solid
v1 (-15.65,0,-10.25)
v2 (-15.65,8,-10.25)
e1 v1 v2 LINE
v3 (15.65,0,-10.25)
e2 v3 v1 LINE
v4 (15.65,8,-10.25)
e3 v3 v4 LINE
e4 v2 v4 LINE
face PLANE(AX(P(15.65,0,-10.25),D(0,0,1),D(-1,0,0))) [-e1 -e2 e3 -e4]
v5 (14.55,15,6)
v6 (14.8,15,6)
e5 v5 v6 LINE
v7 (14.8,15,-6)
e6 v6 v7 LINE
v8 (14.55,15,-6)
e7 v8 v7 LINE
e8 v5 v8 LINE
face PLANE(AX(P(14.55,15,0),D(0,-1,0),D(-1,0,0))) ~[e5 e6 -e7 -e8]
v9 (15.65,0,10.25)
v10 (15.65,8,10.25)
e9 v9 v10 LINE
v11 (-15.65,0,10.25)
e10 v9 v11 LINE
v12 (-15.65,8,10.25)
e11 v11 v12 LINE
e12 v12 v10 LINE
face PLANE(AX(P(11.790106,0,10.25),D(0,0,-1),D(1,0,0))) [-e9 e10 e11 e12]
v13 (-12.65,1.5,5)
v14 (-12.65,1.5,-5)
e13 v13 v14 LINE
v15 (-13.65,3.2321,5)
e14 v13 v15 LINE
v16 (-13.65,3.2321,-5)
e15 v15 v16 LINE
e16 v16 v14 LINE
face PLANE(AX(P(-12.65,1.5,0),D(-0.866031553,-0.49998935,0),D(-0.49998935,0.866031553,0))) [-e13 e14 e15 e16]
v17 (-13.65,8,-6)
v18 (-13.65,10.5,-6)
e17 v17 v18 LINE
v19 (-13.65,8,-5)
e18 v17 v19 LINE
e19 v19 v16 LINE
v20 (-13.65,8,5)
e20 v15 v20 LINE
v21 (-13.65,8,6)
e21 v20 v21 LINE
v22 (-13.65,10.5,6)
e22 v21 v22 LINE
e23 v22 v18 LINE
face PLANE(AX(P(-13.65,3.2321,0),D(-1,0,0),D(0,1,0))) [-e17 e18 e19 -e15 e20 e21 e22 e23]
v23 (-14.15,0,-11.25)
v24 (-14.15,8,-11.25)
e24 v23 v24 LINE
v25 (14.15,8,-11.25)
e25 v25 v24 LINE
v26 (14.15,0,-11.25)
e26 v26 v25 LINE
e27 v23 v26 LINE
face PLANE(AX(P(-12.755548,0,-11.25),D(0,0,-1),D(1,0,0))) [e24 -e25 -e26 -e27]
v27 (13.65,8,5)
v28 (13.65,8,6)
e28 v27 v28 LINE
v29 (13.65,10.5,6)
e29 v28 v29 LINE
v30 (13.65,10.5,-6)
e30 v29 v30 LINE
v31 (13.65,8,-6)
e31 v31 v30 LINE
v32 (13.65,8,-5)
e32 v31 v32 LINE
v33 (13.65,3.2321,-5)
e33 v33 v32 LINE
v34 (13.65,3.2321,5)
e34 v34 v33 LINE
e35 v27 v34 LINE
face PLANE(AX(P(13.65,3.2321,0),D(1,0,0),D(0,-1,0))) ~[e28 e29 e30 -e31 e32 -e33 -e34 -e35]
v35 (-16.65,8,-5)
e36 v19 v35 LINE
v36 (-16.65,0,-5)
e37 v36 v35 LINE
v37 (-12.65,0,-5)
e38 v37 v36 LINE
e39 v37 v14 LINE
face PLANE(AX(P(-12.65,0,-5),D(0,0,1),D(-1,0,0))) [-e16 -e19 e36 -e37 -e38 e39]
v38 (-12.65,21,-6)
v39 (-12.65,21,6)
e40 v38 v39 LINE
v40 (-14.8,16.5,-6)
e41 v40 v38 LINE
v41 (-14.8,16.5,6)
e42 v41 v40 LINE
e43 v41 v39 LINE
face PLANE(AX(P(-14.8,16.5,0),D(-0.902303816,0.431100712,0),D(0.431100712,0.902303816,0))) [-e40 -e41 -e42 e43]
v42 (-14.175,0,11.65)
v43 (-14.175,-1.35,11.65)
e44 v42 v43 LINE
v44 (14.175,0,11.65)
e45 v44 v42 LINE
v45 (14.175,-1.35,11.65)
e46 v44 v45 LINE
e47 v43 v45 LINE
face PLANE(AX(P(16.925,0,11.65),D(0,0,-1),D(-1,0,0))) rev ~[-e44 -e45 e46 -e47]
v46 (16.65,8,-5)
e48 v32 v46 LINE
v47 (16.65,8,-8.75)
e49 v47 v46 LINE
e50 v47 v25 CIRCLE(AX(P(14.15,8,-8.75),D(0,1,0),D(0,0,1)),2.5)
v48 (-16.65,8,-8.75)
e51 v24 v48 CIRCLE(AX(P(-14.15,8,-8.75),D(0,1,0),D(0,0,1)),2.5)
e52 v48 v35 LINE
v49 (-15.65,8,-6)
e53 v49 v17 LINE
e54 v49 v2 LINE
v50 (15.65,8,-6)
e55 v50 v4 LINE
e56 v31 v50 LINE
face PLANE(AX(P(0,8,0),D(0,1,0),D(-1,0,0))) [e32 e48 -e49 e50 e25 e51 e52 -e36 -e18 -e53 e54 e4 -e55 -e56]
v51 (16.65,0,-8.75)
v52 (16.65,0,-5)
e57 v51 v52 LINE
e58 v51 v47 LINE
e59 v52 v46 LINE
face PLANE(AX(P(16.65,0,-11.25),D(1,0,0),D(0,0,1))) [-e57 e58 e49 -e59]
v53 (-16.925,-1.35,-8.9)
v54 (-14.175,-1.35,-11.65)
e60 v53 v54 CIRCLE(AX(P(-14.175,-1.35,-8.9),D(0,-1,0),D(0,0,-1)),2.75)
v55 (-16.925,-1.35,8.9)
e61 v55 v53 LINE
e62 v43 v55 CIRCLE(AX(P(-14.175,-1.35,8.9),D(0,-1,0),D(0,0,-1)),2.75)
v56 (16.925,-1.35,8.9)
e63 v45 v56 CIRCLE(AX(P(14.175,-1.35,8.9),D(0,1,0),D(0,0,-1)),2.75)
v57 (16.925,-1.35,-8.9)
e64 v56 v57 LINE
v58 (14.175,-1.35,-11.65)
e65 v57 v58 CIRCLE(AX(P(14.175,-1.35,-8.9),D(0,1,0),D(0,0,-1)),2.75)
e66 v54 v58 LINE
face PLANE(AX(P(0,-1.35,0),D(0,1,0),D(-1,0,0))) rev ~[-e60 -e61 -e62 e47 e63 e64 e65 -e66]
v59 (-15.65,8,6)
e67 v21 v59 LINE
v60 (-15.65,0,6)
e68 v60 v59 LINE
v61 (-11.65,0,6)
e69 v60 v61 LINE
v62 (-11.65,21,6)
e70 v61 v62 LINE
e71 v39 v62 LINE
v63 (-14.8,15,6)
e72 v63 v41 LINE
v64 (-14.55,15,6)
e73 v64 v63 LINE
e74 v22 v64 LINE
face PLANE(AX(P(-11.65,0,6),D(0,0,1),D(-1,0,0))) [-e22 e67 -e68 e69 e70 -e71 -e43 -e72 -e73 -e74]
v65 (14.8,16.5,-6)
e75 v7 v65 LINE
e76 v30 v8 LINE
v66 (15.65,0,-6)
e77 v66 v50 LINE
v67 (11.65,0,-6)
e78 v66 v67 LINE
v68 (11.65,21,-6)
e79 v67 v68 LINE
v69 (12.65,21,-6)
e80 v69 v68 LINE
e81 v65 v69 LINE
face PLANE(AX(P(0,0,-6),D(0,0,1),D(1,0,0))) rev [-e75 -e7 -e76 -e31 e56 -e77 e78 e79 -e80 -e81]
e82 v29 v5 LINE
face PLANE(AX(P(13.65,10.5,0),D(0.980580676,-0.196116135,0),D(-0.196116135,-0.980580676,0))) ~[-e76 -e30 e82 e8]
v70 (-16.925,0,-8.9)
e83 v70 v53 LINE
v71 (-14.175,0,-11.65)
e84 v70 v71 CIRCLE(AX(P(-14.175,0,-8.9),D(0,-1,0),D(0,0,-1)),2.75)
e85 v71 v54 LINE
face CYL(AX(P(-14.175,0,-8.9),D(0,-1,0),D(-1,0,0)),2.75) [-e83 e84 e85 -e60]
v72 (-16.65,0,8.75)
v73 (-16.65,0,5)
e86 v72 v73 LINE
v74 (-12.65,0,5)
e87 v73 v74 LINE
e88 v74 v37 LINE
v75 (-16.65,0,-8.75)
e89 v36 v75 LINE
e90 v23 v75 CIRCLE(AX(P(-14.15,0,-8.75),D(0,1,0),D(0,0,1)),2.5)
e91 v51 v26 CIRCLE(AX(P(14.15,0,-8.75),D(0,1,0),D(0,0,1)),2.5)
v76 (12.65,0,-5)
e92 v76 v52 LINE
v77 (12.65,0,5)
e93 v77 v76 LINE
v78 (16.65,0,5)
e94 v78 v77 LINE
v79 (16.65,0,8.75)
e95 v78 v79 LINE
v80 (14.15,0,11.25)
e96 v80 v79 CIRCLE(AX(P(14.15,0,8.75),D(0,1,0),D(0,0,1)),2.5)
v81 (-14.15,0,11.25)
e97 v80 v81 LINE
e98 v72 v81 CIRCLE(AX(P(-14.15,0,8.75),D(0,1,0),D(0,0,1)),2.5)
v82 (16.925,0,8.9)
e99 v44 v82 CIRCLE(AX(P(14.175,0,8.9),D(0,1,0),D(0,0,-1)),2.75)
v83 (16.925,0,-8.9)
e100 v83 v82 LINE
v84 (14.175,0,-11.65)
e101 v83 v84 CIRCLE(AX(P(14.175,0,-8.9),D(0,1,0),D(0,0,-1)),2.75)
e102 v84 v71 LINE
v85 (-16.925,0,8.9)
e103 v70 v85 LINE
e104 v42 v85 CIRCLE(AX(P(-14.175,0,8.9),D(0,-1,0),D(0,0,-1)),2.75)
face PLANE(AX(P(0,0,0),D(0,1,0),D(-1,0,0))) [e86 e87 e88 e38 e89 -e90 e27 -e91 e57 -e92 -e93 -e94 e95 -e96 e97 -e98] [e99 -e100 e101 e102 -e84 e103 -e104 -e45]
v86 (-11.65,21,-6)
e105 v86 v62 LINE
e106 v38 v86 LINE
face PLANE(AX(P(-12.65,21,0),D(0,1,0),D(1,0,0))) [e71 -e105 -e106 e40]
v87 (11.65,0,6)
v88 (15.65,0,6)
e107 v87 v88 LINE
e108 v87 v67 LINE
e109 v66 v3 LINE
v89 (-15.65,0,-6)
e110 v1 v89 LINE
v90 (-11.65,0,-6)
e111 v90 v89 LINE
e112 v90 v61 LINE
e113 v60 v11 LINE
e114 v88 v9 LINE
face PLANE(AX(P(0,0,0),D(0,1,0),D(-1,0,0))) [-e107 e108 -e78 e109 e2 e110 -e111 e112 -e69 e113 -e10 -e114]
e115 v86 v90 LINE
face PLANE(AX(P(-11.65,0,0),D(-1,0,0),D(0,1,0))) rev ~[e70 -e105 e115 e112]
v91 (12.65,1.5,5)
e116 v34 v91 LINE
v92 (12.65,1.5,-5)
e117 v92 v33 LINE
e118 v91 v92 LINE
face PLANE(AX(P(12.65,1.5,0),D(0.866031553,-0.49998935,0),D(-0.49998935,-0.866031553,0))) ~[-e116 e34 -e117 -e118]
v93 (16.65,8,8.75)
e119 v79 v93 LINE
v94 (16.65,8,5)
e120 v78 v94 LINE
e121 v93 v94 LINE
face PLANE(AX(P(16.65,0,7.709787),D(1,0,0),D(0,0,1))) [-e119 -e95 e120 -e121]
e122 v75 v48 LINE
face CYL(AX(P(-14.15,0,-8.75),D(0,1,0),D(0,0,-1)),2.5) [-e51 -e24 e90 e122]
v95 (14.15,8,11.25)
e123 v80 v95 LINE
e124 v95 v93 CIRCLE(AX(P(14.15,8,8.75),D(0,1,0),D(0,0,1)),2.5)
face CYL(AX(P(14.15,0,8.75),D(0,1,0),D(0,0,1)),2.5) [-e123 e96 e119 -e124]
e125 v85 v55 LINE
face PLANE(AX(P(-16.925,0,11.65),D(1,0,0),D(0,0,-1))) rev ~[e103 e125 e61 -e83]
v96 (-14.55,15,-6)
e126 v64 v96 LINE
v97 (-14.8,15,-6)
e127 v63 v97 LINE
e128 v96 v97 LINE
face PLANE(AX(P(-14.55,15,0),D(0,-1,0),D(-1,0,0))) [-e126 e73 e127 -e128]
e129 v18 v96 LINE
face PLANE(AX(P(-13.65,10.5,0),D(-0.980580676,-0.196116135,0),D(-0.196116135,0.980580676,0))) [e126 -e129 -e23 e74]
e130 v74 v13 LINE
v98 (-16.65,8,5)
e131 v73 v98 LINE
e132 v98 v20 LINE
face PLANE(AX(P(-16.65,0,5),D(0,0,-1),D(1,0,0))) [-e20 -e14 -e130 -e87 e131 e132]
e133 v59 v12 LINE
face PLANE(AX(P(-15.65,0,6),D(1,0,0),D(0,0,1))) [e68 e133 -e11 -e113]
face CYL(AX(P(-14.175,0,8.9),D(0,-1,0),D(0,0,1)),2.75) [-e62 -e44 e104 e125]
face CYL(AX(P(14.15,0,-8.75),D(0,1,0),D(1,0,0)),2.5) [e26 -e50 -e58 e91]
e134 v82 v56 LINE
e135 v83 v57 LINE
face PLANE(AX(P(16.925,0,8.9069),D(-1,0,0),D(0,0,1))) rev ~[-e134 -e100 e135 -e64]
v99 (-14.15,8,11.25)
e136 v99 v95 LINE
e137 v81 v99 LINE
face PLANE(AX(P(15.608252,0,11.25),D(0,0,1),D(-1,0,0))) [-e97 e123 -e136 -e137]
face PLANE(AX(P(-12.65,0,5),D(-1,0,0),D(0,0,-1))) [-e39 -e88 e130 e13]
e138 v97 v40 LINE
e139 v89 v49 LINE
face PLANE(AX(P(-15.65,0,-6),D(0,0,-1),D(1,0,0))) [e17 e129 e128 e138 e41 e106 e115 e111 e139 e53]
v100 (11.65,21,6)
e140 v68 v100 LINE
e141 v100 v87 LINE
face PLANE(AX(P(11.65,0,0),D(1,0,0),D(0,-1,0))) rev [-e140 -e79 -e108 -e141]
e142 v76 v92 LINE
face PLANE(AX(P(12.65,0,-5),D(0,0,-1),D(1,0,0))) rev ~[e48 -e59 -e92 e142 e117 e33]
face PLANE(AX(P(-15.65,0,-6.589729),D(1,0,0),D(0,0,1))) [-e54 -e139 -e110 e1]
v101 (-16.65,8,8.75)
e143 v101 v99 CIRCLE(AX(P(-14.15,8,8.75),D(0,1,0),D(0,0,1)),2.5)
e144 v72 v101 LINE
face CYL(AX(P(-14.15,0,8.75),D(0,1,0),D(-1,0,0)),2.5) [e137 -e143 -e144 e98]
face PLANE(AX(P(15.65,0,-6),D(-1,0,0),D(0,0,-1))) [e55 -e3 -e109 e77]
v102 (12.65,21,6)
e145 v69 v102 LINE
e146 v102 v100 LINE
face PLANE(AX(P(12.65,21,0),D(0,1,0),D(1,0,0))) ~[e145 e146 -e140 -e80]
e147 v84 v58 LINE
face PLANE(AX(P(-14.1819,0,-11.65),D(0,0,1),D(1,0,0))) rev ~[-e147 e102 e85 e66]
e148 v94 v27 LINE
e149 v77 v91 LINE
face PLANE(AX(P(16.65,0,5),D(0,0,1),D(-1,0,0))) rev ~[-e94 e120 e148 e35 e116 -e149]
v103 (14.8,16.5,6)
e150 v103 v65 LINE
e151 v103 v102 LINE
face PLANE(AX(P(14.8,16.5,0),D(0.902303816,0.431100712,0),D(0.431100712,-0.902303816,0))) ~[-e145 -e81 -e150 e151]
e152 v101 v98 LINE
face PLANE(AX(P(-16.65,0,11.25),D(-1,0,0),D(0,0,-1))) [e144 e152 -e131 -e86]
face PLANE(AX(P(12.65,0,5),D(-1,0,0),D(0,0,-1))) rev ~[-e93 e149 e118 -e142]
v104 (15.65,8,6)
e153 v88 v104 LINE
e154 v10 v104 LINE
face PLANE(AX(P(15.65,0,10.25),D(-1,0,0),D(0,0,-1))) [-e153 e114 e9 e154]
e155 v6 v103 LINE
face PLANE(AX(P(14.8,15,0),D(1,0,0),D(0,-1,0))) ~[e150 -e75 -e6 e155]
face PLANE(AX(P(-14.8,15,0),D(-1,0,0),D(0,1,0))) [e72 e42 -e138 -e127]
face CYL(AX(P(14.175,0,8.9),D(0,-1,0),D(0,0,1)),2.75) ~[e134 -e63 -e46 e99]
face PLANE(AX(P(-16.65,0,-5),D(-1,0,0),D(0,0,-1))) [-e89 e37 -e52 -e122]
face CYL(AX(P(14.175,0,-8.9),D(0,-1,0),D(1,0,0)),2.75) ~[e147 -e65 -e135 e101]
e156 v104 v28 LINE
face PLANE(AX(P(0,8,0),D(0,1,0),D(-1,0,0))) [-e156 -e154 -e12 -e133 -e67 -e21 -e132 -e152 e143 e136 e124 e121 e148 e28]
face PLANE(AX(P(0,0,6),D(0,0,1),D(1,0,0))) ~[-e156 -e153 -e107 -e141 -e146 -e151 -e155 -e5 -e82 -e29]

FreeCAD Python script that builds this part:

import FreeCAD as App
import Part
import Sketcher
from FreeCAD import Vector
Q = App.Units.Quantity


def edges_at(feature, points):
    """Names of the edges that pass closest to the given points."""
    edges = feature.Shape.Edges
    near = lambda p: min(range(len(edges)), key=lambda i: edges[i].distToShape(Part.Vertex(*p))[0])
    return sorted({f"Edge{near(p) + 1}" for p in points})


def add_polygon(sketch, points):
    """Adds a closed chain of lines whose ends are joined by coincident constraints."""
    first, n = sketch.GeometryCount, len(points)
    for a, b in zip(points, points[1:] + points[:1]):
        sketch.addGeometry(Part.LineSegment(App.Vector(*a, 0), App.Vector(*b, 0)), False)
    for i in range(n):
        sketch.addConstraint(Sketcher.Constraint("Coincident", first + i, 2, first + (i + 1) % n, 1))

doc = App.newDocument("Part")
body = doc.addObject("PartDesign::Body", "Body")

# Sketch on XZ plane
sketch1 = body.newObject("Sketcher::SketchObject", "Sketch")
sketch1.AttachmentSupport = (doc.getObject("XZ_Plane"), [""])
sketch1.MapMode = "FlatFace"
add_polygon(sketch1, [(17, 12), (17, -12), (-17, -12), (-17, 12)])  # lines 0-3
sketch1.addConstraint([
    Sketcher.Constraint("Vertical", 0),
    Sketcher.Constraint("Horizontal", 1),
    Sketcher.Constraint("Vertical", 2),
    Sketcher.Constraint("Horizontal", 3),
    Sketcher.Constraint("Symmetric", 0, 2, 2, 2, -1, 1),
    Sketcher.Constraint("DistanceY", 0, 2, 0, 1, 23.3),
    Sketcher.Constraint("DistanceX", 1, 2, 1, 1, 33.85),
])
pad1 = body.newObject("PartDesign::Pad", "Pad")
pad1.Profile = sketch1
pad1.Length = 1.35

# Sketch on XZ plane
sketch2 = body.newObject("Sketcher::SketchObject", "Sketch001")
sketch2.AttachmentSupport = (doc.getObject("XZ_Plane"), [""])
sketch2.MapMode = "FlatFace"
add_polygon(sketch2, [(16.6, 5), (12.7, 5), (12.7, -5), (16.6, -5), (16.6, -11.2), (-16.6, -11.2), (-16.6, -5), (-12.7, -5), (-12.7, 5), (-16.6, 5), (-16.6, 11.2), (16.6, 11.2)])  # lines 0-11
add_polygon(sketch2, [(15.7, 10.2), (-15.7, 10.2), (-15.7, 6), (-11.7, 6), (-11.7, -6), (-15.7, -6), (-15.7, -10.2), (15.7, -10.2), (15.7, -6), (11.7, -6), (11.7, 6), (15.7, 6)])  # lines 12-23
sketch2.addConstraint([
    Sketcher.Constraint("Horizontal", 0),
    Sketcher.Constraint("Vertical", 1),
    Sketcher.Constraint("Horizontal", 2),
    Sketcher.Constraint("Vertical", 3),
    Sketcher.Constraint("Horizontal", 4),
    Sketcher.Constraint("Vertical", 5),
    Sketcher.Constraint("Horizontal", 6),
    Sketcher.Constraint("Vertical", 7),
    Sketcher.Constraint("Horizontal", 8),
    Sketcher.Constraint("Vertical", 9),
    Sketcher.Constraint("Horizontal", 10),
    Sketcher.Constraint("Vertical", 11),
    Sketcher.Constraint("Horizontal", 12),
    Sketcher.Constraint("Vertical", 13),
    Sketcher.Constraint("Horizontal", 14),
    Sketcher.Constraint("Vertical", 15),
    Sketcher.Constraint("Horizontal", 16),
    Sketcher.Constraint("Vertical", 17),
    Sketcher.Constraint("Horizontal", 18),
    Sketcher.Constraint("Vertical", 19),
    Sketcher.Constraint("Horizontal", 20),
    Sketcher.Constraint("Vertical", 21),
    Sketcher.Constraint("Horizontal", 22),
    Sketcher.Constraint("Vertical", 23),
    Sketcher.Constraint("Symmetric", 0, 2, 6, 2, -1, 1),
    Sketcher.Constraint("Symmetric", 2, 2, 8, 2, -1, 1),
    Sketcher.Constraint("Symmetric", 4, 2, 10, 2, -1, 1),
    Sketcher.Constraint("Symmetric", 12, 2, 18, 2, -1, 1),
    Sketcher.Constraint("Symmetric", 14, 2, 20, 2, -1, 1),
    Sketcher.Constraint("Symmetric", 16, 2, 22, 2, -1, 1),
    Sketcher.Constraint("Symmetric", 2, 2, 5, 2, -2),
    Sketcher.Constraint("Symmetric", 16, 2, 19, 2, -2),
    Sketcher.Constraint("Equal", 8, 14),
    Sketcher.Constraint("DistanceX", 0, 2, 0, 1, 4.0),
    Sketcher.Constraint("DistanceY", 1, 2, 1, 1, 10.0),
    Sketcher.Constraint("DistanceX", 4, 2, 4, 1, 33.3),
    Sketcher.Constraint("DistanceX", 9, 2, 12, 2, 1.0),
    Sketcher.Constraint("DistanceY", 12, 2, 9, 2, 1.0),
    Sketcher.Constraint("DistanceY", 8, 2, 13, 2, 1.0),
    Sketcher.Constraint("DistanceY", 4, 2, 9, 2, 22.5),
])
pad2 = body.newObject("PartDesign::Pad", "Pad001")
pad2.Profile = sketch2
pad2.Length = 8
pad2.Reversed = True

# Sketch on XY plane
sketch3 = body.newObject("Sketcher::SketchObject", "Sketch002")
sketch3.AttachmentSupport = (doc.getObject("XY_Plane"), [""])
sketch3.MapMode = "FlatFace"
add_polygon(sketch3, [(-12.65, 0), (-11.65, 0), (-11.65, 21), (-12.65, 21), (-14.8, 16.5), (-14.8, 15), (-14.55, 15), (-13.65, 10.5), (-13.65, 3.23), (-12.65, 1.5)])  # lines 0-9
sketch3.addConstraint([
    Sketcher.Constraint("Horizontal", 0),
    Sketcher.Constraint("Vertical", 1),
    Sketcher.Constraint("Horizontal", 2),
    Sketcher.Constraint("Vertical", 4),
    Sketcher.Constraint("Horizontal", 5),
    Sketcher.Constraint("Vertical", 7),
    Sketcher.Constraint("Vertical", 9),
    Sketcher.Constraint("PointOnObject", 0, 2, -1),
    Sketcher.Constraint("Vertical", 2, 2, 8, 2),
    Sketcher.Constraint("Equal", 4, 9),
    Sketcher.Constraint("DistanceX", 0, 1, 0, 2, 1.0),
    Sketcher.Constraint("DistanceY", 1, 1, 1, 2, 21.0),
    Sketcher.Constraint("DistanceY", 4, 2, 4, 1, 1.5),
    Sketcher.Constraint("DistanceX", 6, 2, 2, 2, 1.0),
    Sketcher.Constraint("DistanceX", 5, 1, 5, 2, 0.25),
    Sketcher.Constraint("DistanceY", -1, 1, 6, 2, 10.5),
    Sketcher.Constraint("DistanceY", 3, 2, 2, 2, 4.5),
    Sketcher.Constraint("Angle", 8, Q("-60.0007 deg")),
    Sketcher.Constraint("DistanceX", 3, 2, 1, 2, 3.15),
    Sketcher.Constraint("DistanceX", 3, 2, -1, 1, 14.8),
])
pad3 = body.newObject("PartDesign::Pad", "Pad002")
pad3.Profile = sketch3
pad3.Length = 12
pad3.Midplane = True
doc.recompute()

mirrored = body.newObject("PartDesign::Mirrored", "Mirrored")
mirrored.Originals = [pad3]
mirrored.MirrorPlane = (doc.getObject("YZ_Plane"), [""])
body.Tip = mirrored
doc.recompute()

fillet = body.newObject("PartDesign::Fillet", "Fillet")
fillet.Base = (mirrored, edges_at(mirrored, [
    (16.65, 4, 11.25),
    (16.65, 4, -11.25),
    (-16.65, 4, -11.25),
    (-16.65, 4, 11.25),
]))
fillet.Radius = 2.5
doc.recompute()

fillet2 = body.newObject("PartDesign::Fillet", "Fillet001")
fillet2.Base = (fillet, edges_at(fillet, [
    (16.925, -0.675, 11.65),
    (-16.925, -0.675, 11.65),
    (16.925, -0.675, -11.65),
    (-16.925, -0.675, -11.65),
]))
fillet2.Radius = 2.75

doc.recompute()
